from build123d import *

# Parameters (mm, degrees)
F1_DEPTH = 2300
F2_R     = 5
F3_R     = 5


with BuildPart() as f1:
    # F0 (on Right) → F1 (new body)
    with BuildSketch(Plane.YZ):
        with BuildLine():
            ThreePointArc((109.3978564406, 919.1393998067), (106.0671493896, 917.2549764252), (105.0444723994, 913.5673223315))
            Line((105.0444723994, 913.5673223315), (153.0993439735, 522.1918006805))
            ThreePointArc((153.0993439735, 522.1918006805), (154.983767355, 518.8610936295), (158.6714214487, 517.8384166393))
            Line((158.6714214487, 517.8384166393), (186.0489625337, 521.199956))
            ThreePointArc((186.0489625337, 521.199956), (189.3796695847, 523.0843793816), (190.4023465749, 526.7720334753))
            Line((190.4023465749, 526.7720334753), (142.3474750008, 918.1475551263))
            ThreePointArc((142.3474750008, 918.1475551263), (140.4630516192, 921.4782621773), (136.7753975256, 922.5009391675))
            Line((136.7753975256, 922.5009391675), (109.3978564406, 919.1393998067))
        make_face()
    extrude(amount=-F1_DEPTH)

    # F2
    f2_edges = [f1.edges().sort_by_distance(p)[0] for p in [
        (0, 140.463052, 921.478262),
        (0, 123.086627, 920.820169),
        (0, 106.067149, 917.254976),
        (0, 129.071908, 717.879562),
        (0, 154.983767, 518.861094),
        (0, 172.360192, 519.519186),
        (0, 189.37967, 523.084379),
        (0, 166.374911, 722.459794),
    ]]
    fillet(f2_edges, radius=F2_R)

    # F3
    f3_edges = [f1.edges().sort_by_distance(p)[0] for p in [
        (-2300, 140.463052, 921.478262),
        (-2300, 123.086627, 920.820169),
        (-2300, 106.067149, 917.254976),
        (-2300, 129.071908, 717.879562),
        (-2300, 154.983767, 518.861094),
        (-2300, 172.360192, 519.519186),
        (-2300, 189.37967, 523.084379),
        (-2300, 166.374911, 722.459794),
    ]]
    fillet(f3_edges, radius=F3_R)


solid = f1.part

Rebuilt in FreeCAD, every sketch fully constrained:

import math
import FreeCAD as App
import Part
import Sketcher
from FreeCAD import Vector
Q = App.Units.Quantity


def edges_at(feature, points):
    """Names of the edges that pass closest to the given points."""
    edges = feature.Shape.Edges
    near = lambda p: min(range(len(edges)), key=lambda i: edges[i].distToShape(Part.Vertex(*p))[0])
    return sorted({f"Edge{near(p) + 1}" for p in points})

doc = App.newDocument("Part")
body = doc.addObject("PartDesign::Body", "Body")

# Sketch on YZ plane
sketch1 = doc.addObject("Sketcher::SketchObject", "Sketch")
body.addObject(sketch1)
sketch1.AttachmentSupport = (doc.YZ_Plane, [""])
sketch1.MapMode = "FlatFace"
sketch1.addGeometry([
    Part.ArcOfCircle(Part.Circle(Vector(110, 914, 0), Vector(0, 0, 1), 5), math.radians(97), math.radians(187)),  # 0
    Part.LineSegment(Vector(105, 914, 0), Vector(153, 522, 0)),  # 1
    Part.ArcOfCircle(Part.Circle(Vector(158, 523, 0), Vector(0, 0, 1), 5), math.radians(-173), math.radians(-83)),  # 2
    Part.LineSegment(Vector(159, 518, 0), Vector(186, 521, 0)),  # 3
    Part.ArcOfCircle(Part.Circle(Vector(185, 526, 0), Vector(0, 0, 1), 5), math.radians(-83), math.radians(7)),  # 4
    Part.LineSegment(Vector(190, 527, 0), Vector(142, 918, 0)),  # 5
    Part.ArcOfCircle(Part.Circle(Vector(137, 918, 0), Vector(0, 0, 1), 5), math.radians(7), math.radians(97)),  # 6
    Part.LineSegment(Vector(137, 923, 0), Vector(109, 919, 0)),  # 7
], False)
sketch1.addConstraint([
    Sketcher.Constraint("Tangent", 0, 2, 1, 1),
    Sketcher.Constraint("Tangent", 1, 2, 2, 1),
    Sketcher.Constraint("Tangent", 2, 2, 3, 1),
    Sketcher.Constraint("Tangent", 3, 2, 4, 1),
    Sketcher.Constraint("Tangent", 4, 2, 5, 1),
    Sketcher.Constraint("Tangent", 5, 2, 6, 1),
    Sketcher.Constraint("Tangent", 6, 2, 7, 1),
    Sketcher.Constraint("Tangent", 7, 2, 0, 1),
    Sketcher.Constraint("Equal", 0, 2),
    Sketcher.Constraint("Equal", 2, 4),
    Sketcher.Constraint("Equal", 4, 6),
    Sketcher.Constraint("Perpendicular", 1, 3),
    Sketcher.Constraint("Perpendicular", 3, 5),
    Sketcher.Constraint("Perpendicular", 5, 7),
    Sketcher.Constraint("Radius", 0, Q("5 mm")),
    Sketcher.Constraint("Angle", 1, Q("-83 deg")),
    Sketcher.Constraint("DistanceY", -1, 1, 1, 2, Q("522.191801 mm")),
    Sketcher.Constraint("DistanceY", -1, 1, 7, 2, Q("919.1394 mm")),
    Sketcher.Constraint("DistanceX", 6, 3, 1, 2, Q("15.7146 mm")),
    Sketcher.Constraint("DistanceX", -1, 1, 2, 2, Q("158.671421 mm")),
])
pad1 = doc.addObject("PartDesign::Pad", "Pad")
body.addObject(pad1)
pad1.Profile = sketch1
pad1.Length = 2300
pad1.Reversed = True
doc.recompute()

fillet = doc.addObject("PartDesign::Fillet", "Fillet")
body.addObject(fillet)
fillet.Base = (pad1, edges_at(pad1, [
    (0, 140.463, 921.478),
    (0, 123.087, 920.82),
    (0, 106.067, 917.255),
    (0, 129.072, 717.88),
    (0, 154.984, 518.861),
    (0, 172.36, 519.519),
    (0, 189.38, 523.084),
    (0, 166.375, 722.46),
]))
fillet.Radius = 5
doc.recompute()

fillet2 = doc.addObject("PartDesign::Fillet", "Fillet001")
body.addObject(fillet2)
fillet2.Base = (fillet, edges_at(fillet, [
    (-2300, 140.463, 921.478),
    (-2300, 123.087, 920.82),
    (-2300, 106.067, 917.255),
    (-2300, 129.072, 717.88),
    (-2300, 154.984, 518.861),
    (-2300, 172.36, 519.519),
    (-2300, 189.38, 523.084),
    (-2300, 166.375, 722.46),
]))
fillet2.Radius = 5

doc.recompute()
